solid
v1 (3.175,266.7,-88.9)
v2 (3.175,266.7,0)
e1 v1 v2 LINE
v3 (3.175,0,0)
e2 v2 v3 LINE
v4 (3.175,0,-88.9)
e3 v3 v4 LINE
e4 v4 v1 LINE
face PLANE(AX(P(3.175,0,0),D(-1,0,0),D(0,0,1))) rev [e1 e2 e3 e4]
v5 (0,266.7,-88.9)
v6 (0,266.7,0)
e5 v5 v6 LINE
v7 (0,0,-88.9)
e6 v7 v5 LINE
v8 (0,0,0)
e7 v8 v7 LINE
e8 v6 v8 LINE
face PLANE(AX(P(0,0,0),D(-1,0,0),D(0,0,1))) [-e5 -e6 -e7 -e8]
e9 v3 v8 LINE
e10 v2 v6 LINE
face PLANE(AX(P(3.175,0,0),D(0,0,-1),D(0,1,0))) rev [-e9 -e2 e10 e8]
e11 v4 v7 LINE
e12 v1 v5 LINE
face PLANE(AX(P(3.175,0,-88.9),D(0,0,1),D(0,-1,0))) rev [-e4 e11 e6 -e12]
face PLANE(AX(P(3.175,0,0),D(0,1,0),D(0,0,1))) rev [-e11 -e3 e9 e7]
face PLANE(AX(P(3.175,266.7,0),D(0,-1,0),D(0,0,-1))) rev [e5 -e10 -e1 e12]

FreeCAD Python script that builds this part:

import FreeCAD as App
import Part
import Sketcher

V = App.Vector
Q = App.Units.Quantity


def add_polygon(sketch, points):
    """Adds a closed chain of lines whose ends are joined by coincident constraints."""
    first, n = sketch.GeometryCount, len(points)
    for a, b in zip(points, points[1:] + points[:1]):
        sketch.addGeometry(Part.LineSegment(App.Vector(*a, 0), App.Vector(*b, 0)), False)
    for i in range(n):
        sketch.addConstraint(Sketcher.Constraint("Coincident", first + i, 2, first + (i + 1) % n, 1))

doc = App.newDocument("Part")
body = doc.addObject("PartDesign::Body", "Body")

sketch1 = body.newObject("Sketcher::SketchObject", "Sketch")
sketch1.AttachmentSupport = (doc.getObject("YZ_Plane"), [""])
sketch1.MapMode = "FlatFace"
add_polygon(sketch1, [(267, 0), (0, 0), (0, -89), (267, -89)])
sketch1.addConstraint(Sketcher.Constraint("Horizontal", 0))
sketch1.addConstraint(Sketcher.Constraint("Vertical", 1))
sketch1.addConstraint(Sketcher.Constraint("Horizontal", 2))
sketch1.addConstraint(Sketcher.Constraint("Vertical", 3))
sketch1.addConstraint(Sketcher.Constraint("Coincident", 0, 2, -1, 1))
sketch1.addConstraint(Sketcher.Constraint("DistanceX", 0, 2, 0, 1, Q("10.5 in")))
sketch1.addConstraint(Sketcher.Constraint("DistanceY", 1, 2, 1, 1, Q("3.5 in")))
pad1 = body.newObject("PartDesign::Pad", "Pad")
pad1.Profile = sketch1
pad1.Length = Q("0.125 in")

doc.recompute()
